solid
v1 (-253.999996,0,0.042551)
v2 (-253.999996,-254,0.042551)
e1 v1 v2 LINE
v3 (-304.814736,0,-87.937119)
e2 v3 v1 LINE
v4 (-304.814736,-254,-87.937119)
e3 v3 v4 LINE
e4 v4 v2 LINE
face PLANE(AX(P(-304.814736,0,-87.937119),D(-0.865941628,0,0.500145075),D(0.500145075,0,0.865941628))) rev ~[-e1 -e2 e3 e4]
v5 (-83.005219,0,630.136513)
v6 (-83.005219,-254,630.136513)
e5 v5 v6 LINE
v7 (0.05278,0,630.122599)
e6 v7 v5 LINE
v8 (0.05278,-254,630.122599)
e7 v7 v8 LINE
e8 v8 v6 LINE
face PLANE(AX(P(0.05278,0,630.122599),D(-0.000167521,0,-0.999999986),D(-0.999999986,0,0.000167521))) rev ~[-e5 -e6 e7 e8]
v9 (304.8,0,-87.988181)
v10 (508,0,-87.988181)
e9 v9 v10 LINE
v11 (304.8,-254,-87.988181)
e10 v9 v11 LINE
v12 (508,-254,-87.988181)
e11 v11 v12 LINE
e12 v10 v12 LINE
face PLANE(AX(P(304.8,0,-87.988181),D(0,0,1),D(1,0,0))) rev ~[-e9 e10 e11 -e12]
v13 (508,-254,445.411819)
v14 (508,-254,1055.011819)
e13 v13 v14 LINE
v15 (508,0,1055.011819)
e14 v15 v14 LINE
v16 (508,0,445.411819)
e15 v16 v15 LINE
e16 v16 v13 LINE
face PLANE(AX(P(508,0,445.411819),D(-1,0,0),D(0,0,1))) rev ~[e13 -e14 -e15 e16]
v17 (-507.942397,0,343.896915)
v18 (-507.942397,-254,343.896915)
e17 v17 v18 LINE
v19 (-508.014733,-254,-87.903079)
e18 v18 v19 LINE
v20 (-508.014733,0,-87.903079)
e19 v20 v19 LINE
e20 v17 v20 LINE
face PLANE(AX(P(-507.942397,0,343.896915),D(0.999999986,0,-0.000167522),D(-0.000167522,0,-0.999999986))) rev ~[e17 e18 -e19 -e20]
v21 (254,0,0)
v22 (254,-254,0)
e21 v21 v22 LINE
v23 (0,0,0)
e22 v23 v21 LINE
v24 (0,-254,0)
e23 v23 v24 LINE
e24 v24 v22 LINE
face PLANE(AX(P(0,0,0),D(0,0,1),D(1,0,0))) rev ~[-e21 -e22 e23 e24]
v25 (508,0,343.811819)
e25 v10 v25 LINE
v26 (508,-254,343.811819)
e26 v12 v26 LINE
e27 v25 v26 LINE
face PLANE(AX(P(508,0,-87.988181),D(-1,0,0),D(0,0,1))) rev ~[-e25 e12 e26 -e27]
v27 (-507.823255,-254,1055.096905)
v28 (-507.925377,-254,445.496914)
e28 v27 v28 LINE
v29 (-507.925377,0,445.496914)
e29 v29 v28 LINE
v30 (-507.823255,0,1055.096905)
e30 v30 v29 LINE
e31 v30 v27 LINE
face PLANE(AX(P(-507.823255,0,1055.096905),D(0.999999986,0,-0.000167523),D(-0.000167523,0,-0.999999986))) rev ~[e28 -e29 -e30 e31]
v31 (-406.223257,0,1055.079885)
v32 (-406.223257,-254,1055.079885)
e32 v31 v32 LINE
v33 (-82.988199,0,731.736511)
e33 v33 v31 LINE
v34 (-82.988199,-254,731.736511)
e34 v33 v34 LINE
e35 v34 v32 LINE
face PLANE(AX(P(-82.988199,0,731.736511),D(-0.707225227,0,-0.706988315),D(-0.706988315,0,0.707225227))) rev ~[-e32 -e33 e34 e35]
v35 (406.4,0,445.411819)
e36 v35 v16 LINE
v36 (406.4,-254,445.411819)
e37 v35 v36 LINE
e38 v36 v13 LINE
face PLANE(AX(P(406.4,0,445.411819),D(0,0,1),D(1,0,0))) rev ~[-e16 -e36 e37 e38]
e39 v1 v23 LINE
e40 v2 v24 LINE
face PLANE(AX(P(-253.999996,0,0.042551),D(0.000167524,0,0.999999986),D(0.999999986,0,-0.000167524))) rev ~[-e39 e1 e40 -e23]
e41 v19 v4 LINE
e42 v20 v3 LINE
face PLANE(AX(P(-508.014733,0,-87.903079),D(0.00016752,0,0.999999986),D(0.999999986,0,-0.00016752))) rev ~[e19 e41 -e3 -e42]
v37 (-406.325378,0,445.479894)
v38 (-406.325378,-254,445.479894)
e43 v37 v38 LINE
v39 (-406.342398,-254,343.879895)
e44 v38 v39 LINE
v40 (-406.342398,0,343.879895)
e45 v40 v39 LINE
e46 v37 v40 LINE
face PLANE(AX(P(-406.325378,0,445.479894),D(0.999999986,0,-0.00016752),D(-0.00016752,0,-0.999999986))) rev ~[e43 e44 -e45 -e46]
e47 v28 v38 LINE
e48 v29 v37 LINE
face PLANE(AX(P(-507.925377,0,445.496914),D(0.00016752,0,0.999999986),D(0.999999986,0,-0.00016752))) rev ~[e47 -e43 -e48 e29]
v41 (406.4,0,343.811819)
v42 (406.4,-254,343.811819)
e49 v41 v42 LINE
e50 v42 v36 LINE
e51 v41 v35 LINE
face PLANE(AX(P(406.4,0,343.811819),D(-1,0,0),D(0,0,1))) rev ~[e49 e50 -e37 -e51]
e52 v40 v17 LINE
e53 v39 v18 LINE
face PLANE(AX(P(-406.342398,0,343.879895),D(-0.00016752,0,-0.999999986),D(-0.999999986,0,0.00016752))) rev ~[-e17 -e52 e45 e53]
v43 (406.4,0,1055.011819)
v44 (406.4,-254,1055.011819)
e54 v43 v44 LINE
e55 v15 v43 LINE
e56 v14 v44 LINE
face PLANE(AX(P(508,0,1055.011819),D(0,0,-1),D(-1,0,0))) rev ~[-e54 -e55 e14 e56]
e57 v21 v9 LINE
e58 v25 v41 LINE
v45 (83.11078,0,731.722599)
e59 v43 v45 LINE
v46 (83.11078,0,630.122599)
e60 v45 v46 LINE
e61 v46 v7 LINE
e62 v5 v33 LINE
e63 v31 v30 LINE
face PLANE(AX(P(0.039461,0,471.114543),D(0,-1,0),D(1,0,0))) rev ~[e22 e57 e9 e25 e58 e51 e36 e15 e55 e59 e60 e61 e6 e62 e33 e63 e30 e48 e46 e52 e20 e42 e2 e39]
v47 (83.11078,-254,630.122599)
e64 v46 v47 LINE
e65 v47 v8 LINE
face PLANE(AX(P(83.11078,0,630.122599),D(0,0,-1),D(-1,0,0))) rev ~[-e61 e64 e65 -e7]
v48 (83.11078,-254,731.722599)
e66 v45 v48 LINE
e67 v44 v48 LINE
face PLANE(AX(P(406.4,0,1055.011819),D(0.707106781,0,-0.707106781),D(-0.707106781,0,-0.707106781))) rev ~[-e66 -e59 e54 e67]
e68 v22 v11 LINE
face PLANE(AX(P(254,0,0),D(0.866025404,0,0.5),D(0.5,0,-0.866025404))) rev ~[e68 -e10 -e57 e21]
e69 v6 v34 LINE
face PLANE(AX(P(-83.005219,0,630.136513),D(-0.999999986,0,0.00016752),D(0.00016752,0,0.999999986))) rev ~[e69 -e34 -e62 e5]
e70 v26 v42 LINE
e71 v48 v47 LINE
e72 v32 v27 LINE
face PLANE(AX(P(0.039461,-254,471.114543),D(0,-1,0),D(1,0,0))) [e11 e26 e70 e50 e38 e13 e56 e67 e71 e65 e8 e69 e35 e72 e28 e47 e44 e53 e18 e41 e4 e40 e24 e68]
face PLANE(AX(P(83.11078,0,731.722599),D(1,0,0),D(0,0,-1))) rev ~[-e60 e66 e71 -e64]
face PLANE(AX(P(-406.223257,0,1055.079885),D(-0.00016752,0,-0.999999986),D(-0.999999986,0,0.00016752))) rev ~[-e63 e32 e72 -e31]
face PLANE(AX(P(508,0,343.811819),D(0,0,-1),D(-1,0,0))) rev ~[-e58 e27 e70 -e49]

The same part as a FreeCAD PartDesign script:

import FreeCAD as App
import Part
import Sketcher

V = App.Vector
Q = App.Units.Quantity


def add_polygon(sketch, points):
    """Adds a closed chain of lines whose ends are joined by coincident constraints."""
    first, n = sketch.GeometryCount, len(points)
    for a, b in zip(points, points[1:] + points[:1]):
        sketch.addGeometry(Part.LineSegment(App.Vector(*a, 0), App.Vector(*b, 0)), False)
    for i in range(n):
        sketch.addConstraint(Sketcher.Constraint("Coincident", first + i, 2, first + (i + 1) % n, 1))

doc = App.newDocument("Part")
body = doc.addObject("PartDesign::Body", "Body")

# Sketch on XZ plane
sketch1 = doc.addObject("Sketcher::SketchObject", "Sketch")
body.addObject(sketch1)
sketch1.AttachmentSupport = (doc.XZ_Plane, [""])
sketch1.MapMode = "FlatFace"
add_polygon(sketch1, [(-254, 0), (0, 0), (254, 0), (305, -88), (508, -88), (508, 344), (406, 344), (406, 445), (508, 445), (508, 1055), (406, 1055), (83, 732), (83, 630), (0, 630), (-83, 630), (-83, 732), (-406, 1055), (-508, 1055), (-508, 445), (-406, 445), (-406, 344), (-508, 344), (-508, -88), (-305, -88)])  # lines 0-23
sketch1.addConstraint(Sketcher.Constraint("Horizontal", 1))
sketch1.addConstraint(Sketcher.Constraint("Horizontal", 3))
sketch1.addConstraint(Sketcher.Constraint("Vertical", 4))
sketch1.addConstraint(Sketcher.Constraint("Horizontal", 5))
sketch1.addConstraint(Sketcher.Constraint("Vertical", 6))
sketch1.addConstraint(Sketcher.Constraint("Horizontal", 7))
sketch1.addConstraint(Sketcher.Constraint("Vertical", 8))
sketch1.addConstraint(Sketcher.Constraint("Horizontal", 9))
sketch1.addConstraint(Sketcher.Constraint("Vertical", 11))
sketch1.addConstraint(Sketcher.Constraint("Horizontal", 12))
sketch1.addConstraint(Sketcher.Constraint("Coincident", 0, 2, -1, 1))
sketch1.addConstraint(Sketcher.Constraint("Parallel", 0, 13))
sketch1.addConstraint(Sketcher.Constraint("Perpendicular", 13, 14))
sketch1.addConstraint(Sketcher.Constraint("Perpendicular", 14, 16))
sketch1.addConstraint(Sketcher.Constraint("Perpendicular", 16, 17))
sketch1.addConstraint(Sketcher.Constraint("Perpendicular", 17, 18))
sketch1.addConstraint(Sketcher.Constraint("Perpendicular", 18, 19))
sketch1.addConstraint(Sketcher.Constraint("Perpendicular", 19, 20))
sketch1.addConstraint(Sketcher.Constraint("Perpendicular", 20, 21))
sketch1.addConstraint(Sketcher.Constraint("Perpendicular", 21, 22))
sketch1.addConstraint(Sketcher.Constraint("Vertical", 4, 2, 7, 2))
sketch1.addConstraint(Sketcher.Constraint("Vertical", 6, 2, 9, 2))
sketch1.addConstraint(Sketcher.Constraint("Equal", 9, 6))
sketch1.addConstraint(Sketcher.Constraint("Equal", 6, 11))
sketch1.addConstraint(Sketcher.Constraint("Equal", 2, 14))
sketch1.addConstraint(Sketcher.Constraint("Equal", 10, 15))
sketch1.addConstraint(Sketcher.Constraint("Equal", 14, 16))
sketch1.addConstraint(Sketcher.Constraint("Equal", 16, 18))
sketch1.addConstraint(Sketcher.Constraint("Equal", 18, 19))
sketch1.addConstraint(Sketcher.Constraint("Equal", 19, 20))
sketch1.addConstraint(Sketcher.Constraint("Equal", 20, 23))
sketch1.addConstraint(Sketcher.Constraint("DistanceX", 1, 1, 1, 2, Q("10 in")))
sketch1.addConstraint(Sketcher.Constraint("DistanceX", 3, 1, 3, 2, Q("8 in")))
sketch1.addConstraint(Sketcher.Constraint("DistanceX", 5, 2, 5, 1, Q("4 in")))
sketch1.addConstraint(Sketcher.Constraint("DistanceY", 4, 1, 4, 2, Q("17 in")))
sketch1.addConstraint(Sketcher.Constraint("DistanceY", 8, 1, 8, 2, Q("24 in")))
sketch1.addConstraint(Sketcher.Constraint("Distance", 0, Q("10 in")))
sketch1.addConstraint(Sketcher.Constraint("Distance", 2, Q("4 in")))
sketch1.addConstraint(Sketcher.Constraint("Distance", 10, Q("18 in")))
sketch1.addConstraint(Sketcher.Constraint("Distance", 17, Q("24 in")))
sketch1.addConstraint(Sketcher.Constraint("Distance", 21, Q("17 in")))
sketch1.addConstraint(Sketcher.Constraint("Distance", 22, Q("8 in")))
sketch1.addConstraint(Sketcher.Constraint("DistanceX", -1, 1, 2, 2, Q("12 in")))
sketch1.addConstraint(Sketcher.Constraint("Angle", 10, Q("-135 deg")))
sketch1.addConstraint(Sketcher.Constraint("DistanceX", 12, 2, 12, 1, Q("3.27 in")))
sketch1.addConstraint(Sketcher.Constraint("Distance", 13, Q("3.27 in")))
sketch1.addConstraint(Sketcher.Constraint("DistanceX", 14, 2, -1, 1, 82.988199))
pad1 = doc.addObject("PartDesign::Pad", "Pad")
body.addObject(pad1)
pad1.Profile = sketch1
pad1.Length = Q("10 in")

doc.recompute()
